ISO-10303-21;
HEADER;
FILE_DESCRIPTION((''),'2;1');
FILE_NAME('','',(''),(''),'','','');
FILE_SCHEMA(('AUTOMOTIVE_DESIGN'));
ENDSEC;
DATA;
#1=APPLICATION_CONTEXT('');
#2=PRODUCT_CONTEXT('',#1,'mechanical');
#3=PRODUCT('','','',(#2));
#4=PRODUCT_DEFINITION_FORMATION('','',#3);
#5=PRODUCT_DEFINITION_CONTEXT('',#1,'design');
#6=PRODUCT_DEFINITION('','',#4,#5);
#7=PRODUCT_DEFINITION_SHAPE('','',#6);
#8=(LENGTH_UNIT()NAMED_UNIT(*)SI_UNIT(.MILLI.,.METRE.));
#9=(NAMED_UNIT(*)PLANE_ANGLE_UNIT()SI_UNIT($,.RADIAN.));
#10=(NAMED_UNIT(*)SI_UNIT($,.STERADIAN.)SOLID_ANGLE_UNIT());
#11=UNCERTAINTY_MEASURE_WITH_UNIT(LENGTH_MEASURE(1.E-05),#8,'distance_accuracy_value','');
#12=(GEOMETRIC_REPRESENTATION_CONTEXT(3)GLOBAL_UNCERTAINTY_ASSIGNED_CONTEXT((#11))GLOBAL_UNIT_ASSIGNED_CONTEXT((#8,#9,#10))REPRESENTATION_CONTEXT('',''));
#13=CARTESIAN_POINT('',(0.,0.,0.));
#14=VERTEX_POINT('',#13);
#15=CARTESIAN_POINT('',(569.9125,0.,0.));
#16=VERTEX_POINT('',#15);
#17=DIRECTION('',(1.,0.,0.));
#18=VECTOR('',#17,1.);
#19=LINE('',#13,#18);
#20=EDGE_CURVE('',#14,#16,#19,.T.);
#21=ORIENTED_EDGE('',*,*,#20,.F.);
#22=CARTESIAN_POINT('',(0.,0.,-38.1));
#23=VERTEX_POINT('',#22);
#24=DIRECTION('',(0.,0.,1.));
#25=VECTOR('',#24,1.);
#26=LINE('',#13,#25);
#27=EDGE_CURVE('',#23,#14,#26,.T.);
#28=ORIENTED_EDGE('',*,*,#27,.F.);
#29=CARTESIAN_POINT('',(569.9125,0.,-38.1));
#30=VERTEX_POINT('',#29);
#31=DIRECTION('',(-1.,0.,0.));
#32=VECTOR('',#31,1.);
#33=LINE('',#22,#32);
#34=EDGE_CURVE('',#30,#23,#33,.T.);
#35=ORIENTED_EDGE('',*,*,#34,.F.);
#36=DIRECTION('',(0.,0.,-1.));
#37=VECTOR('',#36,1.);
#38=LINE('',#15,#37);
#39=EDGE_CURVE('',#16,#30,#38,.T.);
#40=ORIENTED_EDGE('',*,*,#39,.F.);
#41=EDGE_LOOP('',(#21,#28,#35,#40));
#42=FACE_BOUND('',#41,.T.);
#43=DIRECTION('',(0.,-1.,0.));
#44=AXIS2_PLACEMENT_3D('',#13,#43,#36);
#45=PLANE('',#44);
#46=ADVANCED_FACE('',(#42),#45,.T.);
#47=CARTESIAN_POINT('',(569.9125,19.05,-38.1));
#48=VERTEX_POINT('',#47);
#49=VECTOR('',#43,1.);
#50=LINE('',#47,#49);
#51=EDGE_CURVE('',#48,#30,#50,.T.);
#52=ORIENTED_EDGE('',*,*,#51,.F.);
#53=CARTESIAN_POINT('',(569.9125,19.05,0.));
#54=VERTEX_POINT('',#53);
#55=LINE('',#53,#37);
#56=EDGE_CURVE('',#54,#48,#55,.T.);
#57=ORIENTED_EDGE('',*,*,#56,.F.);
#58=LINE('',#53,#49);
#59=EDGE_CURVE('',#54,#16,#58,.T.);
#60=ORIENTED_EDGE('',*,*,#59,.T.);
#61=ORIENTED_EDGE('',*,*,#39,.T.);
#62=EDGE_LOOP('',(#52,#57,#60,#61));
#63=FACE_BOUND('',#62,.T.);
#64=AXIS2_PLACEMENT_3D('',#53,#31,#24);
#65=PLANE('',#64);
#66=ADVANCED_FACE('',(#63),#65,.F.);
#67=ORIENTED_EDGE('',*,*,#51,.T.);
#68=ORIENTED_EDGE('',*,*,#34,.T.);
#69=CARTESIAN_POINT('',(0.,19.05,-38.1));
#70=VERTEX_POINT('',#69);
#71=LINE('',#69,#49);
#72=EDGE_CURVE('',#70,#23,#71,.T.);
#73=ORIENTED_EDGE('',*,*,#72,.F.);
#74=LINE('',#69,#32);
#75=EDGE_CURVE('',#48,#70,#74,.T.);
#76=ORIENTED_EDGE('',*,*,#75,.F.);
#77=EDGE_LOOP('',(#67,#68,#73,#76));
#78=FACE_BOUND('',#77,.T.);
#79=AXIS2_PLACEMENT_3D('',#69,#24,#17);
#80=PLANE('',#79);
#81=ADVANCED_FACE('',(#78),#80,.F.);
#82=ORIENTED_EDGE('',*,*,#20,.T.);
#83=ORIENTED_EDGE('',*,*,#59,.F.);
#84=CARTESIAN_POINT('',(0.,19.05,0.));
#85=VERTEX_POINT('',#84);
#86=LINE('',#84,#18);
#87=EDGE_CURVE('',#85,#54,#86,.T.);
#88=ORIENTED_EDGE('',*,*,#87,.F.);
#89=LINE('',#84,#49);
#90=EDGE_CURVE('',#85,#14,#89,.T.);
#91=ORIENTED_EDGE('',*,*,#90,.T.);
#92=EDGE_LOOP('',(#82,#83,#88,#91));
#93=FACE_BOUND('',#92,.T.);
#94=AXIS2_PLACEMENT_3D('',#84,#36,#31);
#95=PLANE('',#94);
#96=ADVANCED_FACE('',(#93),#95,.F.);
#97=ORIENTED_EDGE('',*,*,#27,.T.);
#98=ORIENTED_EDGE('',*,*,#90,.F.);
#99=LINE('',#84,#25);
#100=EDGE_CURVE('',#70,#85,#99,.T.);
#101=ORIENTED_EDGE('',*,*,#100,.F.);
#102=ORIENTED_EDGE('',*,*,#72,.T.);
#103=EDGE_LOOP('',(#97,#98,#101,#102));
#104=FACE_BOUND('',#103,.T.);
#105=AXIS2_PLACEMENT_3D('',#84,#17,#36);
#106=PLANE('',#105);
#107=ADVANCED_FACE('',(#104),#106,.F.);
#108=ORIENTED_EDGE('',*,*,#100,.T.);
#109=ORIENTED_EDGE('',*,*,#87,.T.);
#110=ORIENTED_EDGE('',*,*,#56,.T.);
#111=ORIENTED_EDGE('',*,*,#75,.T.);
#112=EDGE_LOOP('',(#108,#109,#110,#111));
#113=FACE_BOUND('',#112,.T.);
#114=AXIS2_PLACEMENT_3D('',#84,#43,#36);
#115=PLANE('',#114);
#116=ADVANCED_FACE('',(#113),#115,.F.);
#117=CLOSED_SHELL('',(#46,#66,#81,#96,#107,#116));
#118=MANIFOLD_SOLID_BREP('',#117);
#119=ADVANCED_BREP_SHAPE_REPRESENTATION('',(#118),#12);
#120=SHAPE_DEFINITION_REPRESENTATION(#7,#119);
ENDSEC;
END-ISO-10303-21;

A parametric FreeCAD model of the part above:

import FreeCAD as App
import Part
import Sketcher

V = App.Vector
Q = App.Units.Quantity

doc = App.newDocument("Part")
body = doc.addObject("PartDesign::Body", "Body")

sketch1 = body.newObject("Sketcher::SketchObject", "Sketch")
sketch1.AttachmentSupport = (doc.getObject("XZ_Plane"), [""])
sketch1.MapMode = "FlatFace"
sketch1.addGeometry([
    Part.LineSegment(V(0, -38.1, 0), V(0, 0, 0)),
    Part.LineSegment(V(0, 0, 0), V(569.9125, 0, 0)),
    Part.LineSegment(V(569.9125, 0, 0), V(569.9125, -38.1, 0)),
    Part.LineSegment(V(569.9125, -38.1, 0), V(0, -38.1, 0)),
], False)
sketch1.addConstraint([
    Sketcher.Constraint("Coincident", 0, 2, 1, 1),
    Sketcher.Constraint("Coincident", 1, 2, 2, 1),
    Sketcher.Constraint("Coincident", 2, 2, 3, 1),
    Sketcher.Constraint("Coincident", 3, 2, 0, 1),
    Sketcher.Constraint("Vertical", 0),
    Sketcher.Constraint("Horizontal", 1),
    Sketcher.Constraint("Vertical", 2),
    Sketcher.Constraint("Horizontal", 3),
    Sketcher.Constraint("Coincident", 0, 2, -1, 1),
    Sketcher.Constraint("DistanceY", 0, 1, 0, 2, Q("1.5 in")),
    Sketcher.Constraint("DistanceX", 1, 1, 1, 2, Q("22.4375 in")),
])
pad1 = body.newObject("PartDesign::Pad", "Pad")
pad1.Profile = sketch1
pad1.Length = Q("0.75 in")
pad1.Reversed = True

doc.recompute()
